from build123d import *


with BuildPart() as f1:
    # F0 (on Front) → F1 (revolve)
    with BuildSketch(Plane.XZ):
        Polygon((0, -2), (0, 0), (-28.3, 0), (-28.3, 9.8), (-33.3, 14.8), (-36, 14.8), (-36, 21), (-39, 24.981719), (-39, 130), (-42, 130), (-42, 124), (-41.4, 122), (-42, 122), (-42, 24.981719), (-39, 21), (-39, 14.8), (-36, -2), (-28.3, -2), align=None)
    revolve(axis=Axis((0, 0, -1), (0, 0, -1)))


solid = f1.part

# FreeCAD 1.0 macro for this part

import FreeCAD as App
import Part
import Sketcher

V = App.Vector
Q = App.Units.Quantity

doc = App.newDocument("Part")
body = doc.addObject("PartDesign::Body", "Body")

# Sketch on XZ plane
sketch1 = doc.addObject("Sketcher::SketchObject", "Sketch")
body.addObject(sketch1)
sketch1.AttachmentSupport = (doc.XZ_Plane, [""])
sketch1.MapMode = "FlatFace"
sketch1.addGeometry(Part.LineSegment(V(0, -2, 0), V(0, 0, 0)), False)
sketch1.addGeometry(Part.LineSegment(V(0, 0, 0), V(-28.3, 0, 0)), False)
sketch1.addGeometry(Part.LineSegment(V(-28.3, 0, 0), V(-28.3, 9.8, 0)), False)
sketch1.addGeometry(Part.LineSegment(V(-28.3, 9.8, 0), V(-33.3, 14.8, 0)), False)
sketch1.addGeometry(Part.LineSegment(V(-33.3, 14.8, 0), V(-36, 14.8, 0)), False)
sketch1.addGeometry(Part.LineSegment(V(-36, 14.8, 0), V(-36, 21, 0)), False)
sketch1.addGeometry(Part.LineSegment(V(-36, 21, 0), V(-39, 25, 0)), False)
sketch1.addGeometry(Part.LineSegment(V(-39, 25, 0), V(-39, 130, 0)), False)
sketch1.addGeometry(Part.LineSegment(V(-39, 130, 0), V(-42, 130, 0)), False)
sketch1.addGeometry(Part.LineSegment(V(-42, 130, 0), V(-42, 124, 0)), False)
sketch1.addGeometry(Part.LineSegment(V(-42, 124, 0), V(-41.4, 122, 0)), False)
sketch1.addGeometry(Part.LineSegment(V(-41.4, 122, 0), V(-42, 122, 0)), False)
sketch1.addGeometry(Part.LineSegment(V(-42, 122, 0), V(-42, 25, 0)), False)
sketch1.addGeometry(Part.LineSegment(V(-42, 25, 0), V(-39, 21, 0)), False)
sketch1.addGeometry(Part.LineSegment(V(-39, 21, 0), V(-39, 14.8, 0)), False)
sketch1.addGeometry(Part.LineSegment(V(-39, 14.8, 0), V(-36, -2, 0)), False)
sketch1.addGeometry(Part.LineSegment(V(-36, -2, 0), V(0, -2, 0)), False)
sketch1.addConstraint(Sketcher.Constraint("Coincident", 0, 2, 1, 1))
sketch1.addConstraint(Sketcher.Constraint("Coincident", 1, 2, 2, 1))
sketch1.addConstraint(Sketcher.Constraint("Coincident", 2, 2, 3, 1))
sketch1.addConstraint(Sketcher.Constraint("Coincident", 3, 2, 4, 1))
sketch1.addConstraint(Sketcher.Constraint("Coincident", 4, 2, 5, 1))
sketch1.addConstraint(Sketcher.Constraint("Coincident", 5, 2, 6, 1))
sketch1.addConstraint(Sketcher.Constraint("Coincident", 6, 2, 7, 1))
sketch1.addConstraint(Sketcher.Constraint("Coincident", 7, 2, 8, 1))
sketch1.addConstraint(Sketcher.Constraint("Coincident", 8, 2, 9, 1))
sketch1.addConstraint(Sketcher.Constraint("Coincident", 9, 2, 10, 1))
sketch1.addConstraint(Sketcher.Constraint("Coincident", 10, 2, 11, 1))
sketch1.addConstraint(Sketcher.Constraint("Coincident", 11, 2, 12, 1))
sketch1.addConstraint(Sketcher.Constraint("Coincident", 12, 2, 13, 1))
sketch1.addConstraint(Sketcher.Constraint("Coincident", 13, 2, 14, 1))
sketch1.addConstraint(Sketcher.Constraint("Coincident", 14, 2, 15, 1))
sketch1.addConstraint(Sketcher.Constraint("Coincident", 15, 2, 16, 1))
sketch1.addConstraint(Sketcher.Constraint("Coincident", 16, 2, 0, 1))
sketch1.addConstraint(Sketcher.Constraint("Vertical", 0))
sketch1.addConstraint(Sketcher.Constraint("Horizontal", 1))
sketch1.addConstraint(Sketcher.Constraint("Vertical", 2))
sketch1.addConstraint(Sketcher.Constraint("Horizontal", 4))
sketch1.addConstraint(Sketcher.Constraint("Vertical", 5))
sketch1.addConstraint(Sketcher.Constraint("Vertical", 7))
sketch1.addConstraint(Sketcher.Constraint("Horizontal", 8))
sketch1.addConstraint(Sketcher.Constraint("Vertical", 9))
sketch1.addConstraint(Sketcher.Constraint("Horizontal", 11))
sketch1.addConstraint(Sketcher.Constraint("Vertical", 12))
sketch1.addConstraint(Sketcher.Constraint("Vertical", 14))
sketch1.addConstraint(Sketcher.Constraint("Horizontal", 16))
sketch1.addConstraint(Sketcher.Constraint("Coincident", 0, 2, -1, 1))
sketch1.addConstraint(Sketcher.Constraint("Parallel", 6, 13))
sketch1.addConstraint(Sketcher.Constraint("Horizontal", 6, 2, 12, 2))
sketch1.addConstraint(Sketcher.Constraint("Horizontal", 5, 2, 13, 2))
sketch1.addConstraint(Sketcher.Constraint("Horizontal", 4, 2, 14, 2))
sketch1.addConstraint(Sketcher.Constraint("Vertical", 9, 2, 11, 2))
sketch1.addConstraint(Sketcher.Constraint("Vertical", 7, 2, 13, 2))
sketch1.addConstraint(Sketcher.Constraint("Vertical", 5, 2, 15, 2))
sketch1.addConstraint(Sketcher.Constraint("DistanceX", 8, 2, 8, 1, Q("3 mm")))
sketch1.addConstraint(Sketcher.Constraint("DistanceX", 16, 1, 16, 2, Q("36 mm")))
sketch1.addConstraint(Sketcher.Constraint("DistanceY", 0, 1, 0, 2, Q("2 mm")))
sketch1.addConstraint(Sketcher.Constraint("DistanceY", 9, 2, 9, 1, Q("6 mm")))
sketch1.addConstraint(Sketcher.Constraint("Angle", 3, Q("135 deg")))
sketch1.addConstraint(Sketcher.Constraint("DistanceX", 1, 2, 1, 1, Q("28.3 mm")))
sketch1.addConstraint(Sketcher.Constraint("DistanceX", 4, 2, 4, 1, Q("2.7 mm")))
sketch1.addConstraint(Sketcher.Constraint("DistanceX", 11, 2, 11, 1, Q("0.6 mm")))
sketch1.addConstraint(Sketcher.Constraint("DistanceY", 2, 1, 2, 2, Q("9.8 mm")))
sketch1.addConstraint(Sketcher.Constraint("DistanceY", 5, 1, 5, 2, Q("6.2 mm")))
sketch1.addConstraint(Sketcher.Constraint("DistanceY", -1, 1, 7, 2, Q("130 mm")))
sketch1.addConstraint(Sketcher.Constraint("DistanceY", -1, 1, 10, 2, Q("122 mm")))
sketch1.addConstraint(Sketcher.Constraint("DistanceY", 7, 1, 7, 2, Q("105.018281 mm")))
revolution = doc.addObject("PartDesign::Revolution", "Revolution")
body.addObject(revolution)
revolution.Profile = sketch1
revolution.ReferenceAxis = (sketch1, ["V_Axis"])
revolution.Angle = 360

doc.recompute()
